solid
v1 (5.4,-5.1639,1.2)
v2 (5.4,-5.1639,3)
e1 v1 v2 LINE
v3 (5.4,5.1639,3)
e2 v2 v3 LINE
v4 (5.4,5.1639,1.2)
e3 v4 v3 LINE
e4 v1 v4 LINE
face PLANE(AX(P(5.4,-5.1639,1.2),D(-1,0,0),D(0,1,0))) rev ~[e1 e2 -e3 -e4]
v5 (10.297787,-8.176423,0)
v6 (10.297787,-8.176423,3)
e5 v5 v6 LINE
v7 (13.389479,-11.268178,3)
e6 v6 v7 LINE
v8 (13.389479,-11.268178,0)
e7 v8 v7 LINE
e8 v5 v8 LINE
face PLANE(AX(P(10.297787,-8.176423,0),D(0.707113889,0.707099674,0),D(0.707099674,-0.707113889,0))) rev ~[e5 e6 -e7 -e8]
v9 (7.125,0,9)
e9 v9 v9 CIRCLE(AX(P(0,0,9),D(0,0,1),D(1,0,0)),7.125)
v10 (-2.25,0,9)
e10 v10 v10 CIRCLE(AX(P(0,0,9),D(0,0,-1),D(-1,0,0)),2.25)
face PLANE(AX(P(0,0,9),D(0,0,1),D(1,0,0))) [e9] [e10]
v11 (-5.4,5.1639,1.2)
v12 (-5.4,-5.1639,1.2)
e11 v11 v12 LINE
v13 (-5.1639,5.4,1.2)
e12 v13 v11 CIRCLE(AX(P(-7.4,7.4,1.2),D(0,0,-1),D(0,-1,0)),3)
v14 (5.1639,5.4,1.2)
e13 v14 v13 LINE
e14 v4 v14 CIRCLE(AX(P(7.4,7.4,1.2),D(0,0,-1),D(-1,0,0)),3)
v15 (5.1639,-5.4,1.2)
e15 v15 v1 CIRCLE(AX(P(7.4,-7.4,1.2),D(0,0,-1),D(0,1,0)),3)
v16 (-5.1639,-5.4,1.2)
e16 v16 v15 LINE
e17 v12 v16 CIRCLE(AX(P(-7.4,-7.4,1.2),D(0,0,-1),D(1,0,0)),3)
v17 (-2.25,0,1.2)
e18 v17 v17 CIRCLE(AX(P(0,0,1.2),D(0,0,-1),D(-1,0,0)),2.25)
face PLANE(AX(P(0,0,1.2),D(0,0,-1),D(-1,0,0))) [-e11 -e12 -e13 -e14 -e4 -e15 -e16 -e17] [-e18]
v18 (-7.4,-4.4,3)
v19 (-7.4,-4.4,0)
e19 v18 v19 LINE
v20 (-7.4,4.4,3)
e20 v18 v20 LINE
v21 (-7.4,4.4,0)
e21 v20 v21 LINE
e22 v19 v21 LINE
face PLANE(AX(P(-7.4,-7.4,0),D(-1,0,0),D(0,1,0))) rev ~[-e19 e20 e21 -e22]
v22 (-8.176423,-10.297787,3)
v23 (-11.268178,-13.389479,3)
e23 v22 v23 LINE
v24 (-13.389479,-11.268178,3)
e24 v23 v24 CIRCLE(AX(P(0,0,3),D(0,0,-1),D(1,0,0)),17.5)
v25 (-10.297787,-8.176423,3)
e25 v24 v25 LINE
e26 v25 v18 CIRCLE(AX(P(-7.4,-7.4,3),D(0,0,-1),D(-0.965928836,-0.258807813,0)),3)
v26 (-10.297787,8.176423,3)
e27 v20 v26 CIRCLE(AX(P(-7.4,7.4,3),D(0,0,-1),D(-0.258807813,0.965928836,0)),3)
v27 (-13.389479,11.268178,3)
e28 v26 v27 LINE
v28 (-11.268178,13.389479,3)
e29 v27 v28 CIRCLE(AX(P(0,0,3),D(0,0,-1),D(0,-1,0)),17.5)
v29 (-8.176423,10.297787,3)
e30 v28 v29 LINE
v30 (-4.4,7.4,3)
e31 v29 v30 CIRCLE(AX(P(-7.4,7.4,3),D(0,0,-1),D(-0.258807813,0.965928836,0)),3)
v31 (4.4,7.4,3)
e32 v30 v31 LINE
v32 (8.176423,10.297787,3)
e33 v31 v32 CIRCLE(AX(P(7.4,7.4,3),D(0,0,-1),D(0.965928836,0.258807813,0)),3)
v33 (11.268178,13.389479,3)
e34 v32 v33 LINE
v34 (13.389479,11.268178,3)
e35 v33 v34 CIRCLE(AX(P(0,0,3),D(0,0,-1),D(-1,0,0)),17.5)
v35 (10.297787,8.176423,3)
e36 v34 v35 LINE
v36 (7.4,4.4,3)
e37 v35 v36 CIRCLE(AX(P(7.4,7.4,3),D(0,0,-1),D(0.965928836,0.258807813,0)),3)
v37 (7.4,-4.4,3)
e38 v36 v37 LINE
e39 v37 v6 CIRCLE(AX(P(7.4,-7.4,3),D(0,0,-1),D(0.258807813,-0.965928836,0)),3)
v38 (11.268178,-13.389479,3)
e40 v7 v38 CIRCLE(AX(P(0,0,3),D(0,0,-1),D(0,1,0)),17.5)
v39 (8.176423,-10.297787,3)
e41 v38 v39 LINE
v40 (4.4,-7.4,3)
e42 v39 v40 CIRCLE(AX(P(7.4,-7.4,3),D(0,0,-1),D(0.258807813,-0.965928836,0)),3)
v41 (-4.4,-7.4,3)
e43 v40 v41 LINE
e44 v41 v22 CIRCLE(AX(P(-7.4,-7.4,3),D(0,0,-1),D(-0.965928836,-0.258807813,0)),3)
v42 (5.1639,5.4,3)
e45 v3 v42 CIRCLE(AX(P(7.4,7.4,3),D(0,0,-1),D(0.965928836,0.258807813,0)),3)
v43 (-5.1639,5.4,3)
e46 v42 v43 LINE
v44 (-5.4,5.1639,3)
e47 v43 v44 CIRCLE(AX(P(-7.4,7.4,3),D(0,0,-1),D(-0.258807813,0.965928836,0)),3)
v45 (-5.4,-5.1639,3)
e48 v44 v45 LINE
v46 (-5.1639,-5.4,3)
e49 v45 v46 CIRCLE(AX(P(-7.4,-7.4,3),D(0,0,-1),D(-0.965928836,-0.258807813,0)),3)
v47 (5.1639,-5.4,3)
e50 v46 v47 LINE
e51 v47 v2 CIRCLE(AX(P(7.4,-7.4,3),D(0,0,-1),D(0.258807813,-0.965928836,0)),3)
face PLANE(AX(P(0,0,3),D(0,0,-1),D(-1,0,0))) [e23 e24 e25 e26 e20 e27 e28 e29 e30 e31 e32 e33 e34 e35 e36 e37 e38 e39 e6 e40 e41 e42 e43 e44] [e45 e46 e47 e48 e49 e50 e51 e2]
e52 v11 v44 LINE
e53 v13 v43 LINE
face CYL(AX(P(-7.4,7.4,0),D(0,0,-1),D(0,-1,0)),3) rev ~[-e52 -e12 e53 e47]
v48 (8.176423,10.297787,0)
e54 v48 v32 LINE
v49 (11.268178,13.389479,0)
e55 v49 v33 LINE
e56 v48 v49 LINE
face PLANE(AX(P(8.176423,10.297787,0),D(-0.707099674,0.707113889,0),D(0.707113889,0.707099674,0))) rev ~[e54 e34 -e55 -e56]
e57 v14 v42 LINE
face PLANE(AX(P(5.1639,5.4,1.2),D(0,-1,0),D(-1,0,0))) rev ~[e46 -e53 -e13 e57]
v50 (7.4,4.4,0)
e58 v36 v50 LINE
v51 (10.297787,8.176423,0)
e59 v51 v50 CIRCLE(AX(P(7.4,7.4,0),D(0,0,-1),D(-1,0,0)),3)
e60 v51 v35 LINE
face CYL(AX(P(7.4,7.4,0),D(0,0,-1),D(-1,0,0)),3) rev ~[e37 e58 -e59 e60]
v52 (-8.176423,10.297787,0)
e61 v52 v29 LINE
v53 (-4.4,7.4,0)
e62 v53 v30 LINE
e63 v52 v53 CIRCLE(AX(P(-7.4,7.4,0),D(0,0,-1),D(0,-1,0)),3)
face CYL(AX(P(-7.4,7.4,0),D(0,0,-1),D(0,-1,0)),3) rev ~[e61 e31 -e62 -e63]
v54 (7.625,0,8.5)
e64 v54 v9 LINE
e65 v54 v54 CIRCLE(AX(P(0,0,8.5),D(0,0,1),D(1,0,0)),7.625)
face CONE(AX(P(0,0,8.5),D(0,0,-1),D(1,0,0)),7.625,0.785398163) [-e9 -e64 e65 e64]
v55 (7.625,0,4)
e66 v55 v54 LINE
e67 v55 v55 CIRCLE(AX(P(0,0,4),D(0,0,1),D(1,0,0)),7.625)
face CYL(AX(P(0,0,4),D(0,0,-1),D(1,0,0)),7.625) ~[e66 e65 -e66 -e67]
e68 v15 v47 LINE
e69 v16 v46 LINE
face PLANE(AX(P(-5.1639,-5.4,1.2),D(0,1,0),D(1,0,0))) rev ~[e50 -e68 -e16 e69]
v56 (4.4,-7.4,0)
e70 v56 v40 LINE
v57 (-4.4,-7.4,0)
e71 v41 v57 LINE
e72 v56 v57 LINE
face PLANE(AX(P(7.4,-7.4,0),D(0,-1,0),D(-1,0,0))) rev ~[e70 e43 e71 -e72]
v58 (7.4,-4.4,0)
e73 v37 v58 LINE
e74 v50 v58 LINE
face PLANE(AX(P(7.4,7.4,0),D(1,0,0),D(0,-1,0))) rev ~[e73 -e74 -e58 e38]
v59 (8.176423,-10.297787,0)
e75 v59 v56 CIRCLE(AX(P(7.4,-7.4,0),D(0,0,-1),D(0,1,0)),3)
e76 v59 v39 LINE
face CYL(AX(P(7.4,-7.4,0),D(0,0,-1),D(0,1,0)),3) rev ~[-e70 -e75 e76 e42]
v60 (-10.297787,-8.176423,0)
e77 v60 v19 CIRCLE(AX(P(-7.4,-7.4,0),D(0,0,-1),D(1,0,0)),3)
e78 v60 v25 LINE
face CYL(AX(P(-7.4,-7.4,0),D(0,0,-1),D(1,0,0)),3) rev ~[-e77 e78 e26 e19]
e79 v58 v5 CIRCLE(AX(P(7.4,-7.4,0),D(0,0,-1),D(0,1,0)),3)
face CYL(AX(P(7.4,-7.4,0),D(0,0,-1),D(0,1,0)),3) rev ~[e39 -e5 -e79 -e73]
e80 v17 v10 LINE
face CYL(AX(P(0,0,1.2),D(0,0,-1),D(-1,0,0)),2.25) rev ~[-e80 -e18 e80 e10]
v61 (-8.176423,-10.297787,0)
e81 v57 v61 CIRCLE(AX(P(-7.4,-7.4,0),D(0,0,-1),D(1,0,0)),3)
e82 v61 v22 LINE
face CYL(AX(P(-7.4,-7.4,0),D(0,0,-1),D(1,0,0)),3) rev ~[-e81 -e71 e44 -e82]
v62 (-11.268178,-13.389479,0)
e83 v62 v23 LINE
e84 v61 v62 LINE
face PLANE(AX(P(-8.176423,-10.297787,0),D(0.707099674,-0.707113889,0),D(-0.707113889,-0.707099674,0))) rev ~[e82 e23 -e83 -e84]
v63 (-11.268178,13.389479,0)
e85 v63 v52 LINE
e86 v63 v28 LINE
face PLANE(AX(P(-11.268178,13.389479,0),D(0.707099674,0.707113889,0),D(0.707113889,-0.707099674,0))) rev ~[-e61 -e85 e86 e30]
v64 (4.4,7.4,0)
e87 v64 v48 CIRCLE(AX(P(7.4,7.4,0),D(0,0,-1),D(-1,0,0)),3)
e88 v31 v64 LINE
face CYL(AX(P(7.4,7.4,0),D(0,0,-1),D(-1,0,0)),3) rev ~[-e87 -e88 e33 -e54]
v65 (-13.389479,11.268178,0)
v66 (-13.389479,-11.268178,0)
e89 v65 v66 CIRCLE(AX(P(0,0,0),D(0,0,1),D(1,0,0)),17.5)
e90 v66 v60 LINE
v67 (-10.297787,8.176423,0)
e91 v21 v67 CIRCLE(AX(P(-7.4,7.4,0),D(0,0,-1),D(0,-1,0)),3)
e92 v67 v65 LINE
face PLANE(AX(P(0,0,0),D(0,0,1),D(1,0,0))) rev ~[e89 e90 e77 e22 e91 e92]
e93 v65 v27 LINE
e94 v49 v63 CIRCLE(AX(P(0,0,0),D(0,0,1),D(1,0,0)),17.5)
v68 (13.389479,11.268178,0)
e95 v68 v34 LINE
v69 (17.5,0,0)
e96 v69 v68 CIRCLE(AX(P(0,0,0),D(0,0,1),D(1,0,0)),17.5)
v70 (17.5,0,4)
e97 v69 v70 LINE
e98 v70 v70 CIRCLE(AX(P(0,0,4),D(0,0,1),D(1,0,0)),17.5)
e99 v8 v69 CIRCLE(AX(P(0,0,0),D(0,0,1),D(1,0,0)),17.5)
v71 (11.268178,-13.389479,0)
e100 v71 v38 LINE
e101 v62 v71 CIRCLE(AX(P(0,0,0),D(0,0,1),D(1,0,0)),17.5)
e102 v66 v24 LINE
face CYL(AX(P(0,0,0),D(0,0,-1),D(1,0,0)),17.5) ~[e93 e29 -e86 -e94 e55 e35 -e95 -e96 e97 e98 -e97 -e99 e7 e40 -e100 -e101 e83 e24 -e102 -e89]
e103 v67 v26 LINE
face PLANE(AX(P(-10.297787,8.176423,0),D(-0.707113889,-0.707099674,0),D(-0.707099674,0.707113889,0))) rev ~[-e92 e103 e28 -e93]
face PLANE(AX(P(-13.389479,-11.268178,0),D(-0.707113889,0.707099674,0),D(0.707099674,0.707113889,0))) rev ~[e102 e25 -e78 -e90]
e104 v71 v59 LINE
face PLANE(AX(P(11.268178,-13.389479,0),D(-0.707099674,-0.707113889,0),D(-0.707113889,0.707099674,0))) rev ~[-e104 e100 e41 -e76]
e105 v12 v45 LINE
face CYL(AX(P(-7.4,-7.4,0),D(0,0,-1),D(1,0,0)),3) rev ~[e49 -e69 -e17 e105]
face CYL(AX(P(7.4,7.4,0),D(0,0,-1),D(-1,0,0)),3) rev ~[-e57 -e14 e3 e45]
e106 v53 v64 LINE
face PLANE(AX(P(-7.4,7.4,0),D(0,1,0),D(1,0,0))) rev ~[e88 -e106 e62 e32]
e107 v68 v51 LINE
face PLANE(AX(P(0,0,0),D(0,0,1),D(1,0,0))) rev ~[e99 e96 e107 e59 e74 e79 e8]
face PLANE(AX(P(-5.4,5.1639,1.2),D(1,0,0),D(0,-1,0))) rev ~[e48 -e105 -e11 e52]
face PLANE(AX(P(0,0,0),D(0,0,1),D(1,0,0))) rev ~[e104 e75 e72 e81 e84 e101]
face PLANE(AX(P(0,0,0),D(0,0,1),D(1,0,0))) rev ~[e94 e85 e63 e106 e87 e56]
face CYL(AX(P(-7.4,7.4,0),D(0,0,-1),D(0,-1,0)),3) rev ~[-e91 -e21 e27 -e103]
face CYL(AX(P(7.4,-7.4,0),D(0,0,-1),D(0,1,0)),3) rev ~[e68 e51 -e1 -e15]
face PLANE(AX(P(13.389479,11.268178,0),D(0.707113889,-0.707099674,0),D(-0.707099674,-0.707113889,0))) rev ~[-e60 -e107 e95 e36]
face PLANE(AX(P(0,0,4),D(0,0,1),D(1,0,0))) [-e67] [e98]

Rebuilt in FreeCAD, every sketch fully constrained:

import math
import FreeCAD as App
import Part
import Sketcher
Q = App.Units.Quantity


def edges_at(feature, points):
    """Names of the edges that pass closest to the given points."""
    edges = feature.Shape.Edges
    near = lambda p: min(range(len(edges)), key=lambda i: edges[i].distToShape(Part.Vertex(*p))[0])
    return sorted({f"Edge{near(p) + 1}" for p in points})


def add_polygon(sketch, points):
    """Adds a closed chain of lines whose ends are joined by coincident constraints."""
    first, n = sketch.GeometryCount, len(points)
    for a, b in zip(points, points[1:] + points[:1]):
        sketch.addGeometry(Part.LineSegment(App.Vector(*a, 0), App.Vector(*b, 0)), False)
    for i in range(n):
        sketch.addConstraint(Sketcher.Constraint("Coincident", first + i, 2, first + (i + 1) % n, 1))

doc = App.newDocument("Part")
body = doc.addObject("PartDesign::Body", "Body")

sketch1 = doc.addObject("Sketcher::SketchObject", "Sketch")
body.addObject(sketch1)
sketch1.AttachmentSupport = (doc.XY_Plane, [""])
sketch1.MapMode = "FlatFace"
sketch1.addGeometry(Part.Circle(App.Vector(0, 0, 0), App.Vector(0, 0, 1), 17.5), False)
sketch1.addConstraint(Sketcher.Constraint("Coincident", 0, 3, -1, 1))
sketch1.addConstraint(Sketcher.Constraint("Diameter", 0, 35.0))
pad1 = doc.addObject("PartDesign::Pad", "Pad")
body.addObject(pad1)
pad1.Profile = sketch1
pad1.Length = 4

sketch2 = doc.addObject("Sketcher::SketchObject", "Sketch001")
body.addObject(sketch2)
sketch2.AttachmentSupport = (doc.XY_Plane, [""])
sketch2.MapMode = "FlatFace"
sketch2.AttachmentOffset = App.Placement(App.Vector(0, 0, 4), App.Rotation())
sketch2.addGeometry(Part.Circle(App.Vector(0, 0, 0), App.Vector(0, 0, 1), 7.625), False)
sketch2.addConstraint(Sketcher.Constraint("Coincident", 0, 3, -1, 1))
sketch2.addConstraint(Sketcher.Constraint("Diameter", 0, 15.25))
pad2 = doc.addObject("PartDesign::Pad", "Pad001")
body.addObject(pad2)
pad2.Profile = sketch2
pad2.Length = 5
doc.recompute()

chamfer = doc.addObject("PartDesign::Chamfer", "Chamfer")
body.addObject(chamfer)
chamfer.Base = (pad2, edges_at(pad2, [(-7.625, 0, 9)]))
chamfer.Size = 0.5

sketch3 = doc.addObject("Sketcher::SketchObject", "Sketch002")
body.addObject(sketch3)
sketch3.AttachmentSupport = (doc.XY_Plane, [""])
sketch3.MapMode = "FlatFace"
add_polygon(sketch3, [(7.4, 7.4), (7.4, -7.4), (-7.4, -7.4), (-7.4, 7.4)])
sketch3.addConstraint(Sketcher.Constraint("Vertical", 0))
sketch3.addConstraint(Sketcher.Constraint("Horizontal", 1))
sketch3.addConstraint(Sketcher.Constraint("Vertical", 2))
sketch3.addConstraint(Sketcher.Constraint("Horizontal", 3))
sketch3.addConstraint(Sketcher.Constraint("Symmetric", 0, 2, 2, 2, -1, 1))
sketch3.addConstraint(Sketcher.Constraint("Equal", 3, 0))
sketch3.addConstraint(Sketcher.Constraint("DistanceX", 1, 2, 1, 1, 14.8))
pocket1 = doc.addObject("PartDesign::Pocket", "Pocket")
body.addObject(pocket1)
pocket1.Profile = sketch3
pocket1.Length = 1.2
pocket1.Reversed = True

sketch4 = doc.addObject("Sketcher::SketchObject", "Sketch003")
body.addObject(sketch4)
sketch4.AttachmentSupport = (doc.XY_Plane, [""])
sketch4.MapMode = "FlatFace"
sketch4.addGeometry(Part.Circle(App.Vector(7.4, 7.4, 0), App.Vector(0, 0, 1), 3), False)
sketch4.addConstraint(Sketcher.Constraint("Diameter", 0, 6.0))
sketch4.addConstraint(Sketcher.Constraint("DistanceX", -1, 1, 0, 3, 7.4))
sketch4.addConstraint(Sketcher.Constraint("DistanceY", -1, 1, 0, 3, 7.4))
pocket2 = doc.addObject("PartDesign::Pocket", "Pocket001")
body.addObject(pocket2)
pocket2.Profile = sketch4
pocket2.Length = 3
pocket2.Reversed = True

sketch5 = doc.addObject("Sketcher::SketchObject", "Sketch004")
body.addObject(sketch5)
sketch5.AttachmentSupport = (doc.XY_Plane, [""])
sketch5.MapMode = "FlatFace"
sketch5.addGeometry(Part.ArcOfCircle(Part.Circle(App.Vector(7.4, 7.4, 0), App.Vector(0, 0, 1), 3), math.radians(14.999334), math.radians(75.000666)), False)
sketch5.addGeometry(Part.LineSegment(App.Vector(8.176423, 10.297787, 0), App.Vector(11.268178, 13.389479, 0)), False)
sketch5.addGeometry(Part.ArcOfCircle(Part.Circle(App.Vector(0, 0, 0), App.Vector(0, 0, 1), 17.5), math.radians(40.082945), math.radians(49.917055)), False)
sketch5.addGeometry(Part.LineSegment(App.Vector(13.389479, 11.268178, 0), App.Vector(10.297787, 8.176423, 0)), False)
sketch5.addConstraint(Sketcher.Constraint("Coincident", 0, 2, 1, 1))
sketch5.addConstraint(Sketcher.Constraint("Coincident", 1, 2, 2, 2))
sketch5.addConstraint(Sketcher.Constraint("Coincident", 2, 1, 3, 1))
sketch5.addConstraint(Sketcher.Constraint("Coincident", 3, 2, 0, 1))
sketch5.addConstraint(Sketcher.Constraint("Coincident", 2, 3, -1, 1))
sketch5.addConstraint(Sketcher.Constraint("Parallel", 1, 3))
sketch5.addConstraint(Sketcher.Constraint("Equal", 1, 3))
sketch5.addConstraint(Sketcher.Constraint("Angle", 1, Q("44.9994 deg")))
sketch5.addConstraint(Sketcher.Constraint("Radius", 0, 3.0))
sketch5.addConstraint(Sketcher.Constraint("Radius", 2, 17.5))
sketch5.addConstraint(Sketcher.Constraint("DistanceX", -1, 1, 0, 3, 7.4))
sketch5.addConstraint(Sketcher.Constraint("DistanceY", -1, 1, 0, 3, 7.4))
sketch5.addConstraint(Sketcher.Constraint("DistanceX", 0, 2, 2, 1, 5.213))
pocket3 = doc.addObject("PartDesign::Pocket", "Pocket002")
body.addObject(pocket3)
pocket3.Profile = sketch5
pocket3.Length = 3
pocket3.Reversed = True
doc.recompute()

polarpattern = doc.addObject("PartDesign::PolarPattern", "PolarPattern")
body.addObject(polarpattern)
polarpattern.Originals = [pocket2, pocket3]
polarpattern.Axis = (doc.Z_Axis, [""])
polarpattern.Angle = 360
polarpattern.Occurrences = 4
body.Tip = polarpattern

sketch6 = doc.addObject("Sketcher::SketchObject", "Sketch005")
body.addObject(sketch6)
sketch6.AttachmentSupport = (doc.XY_Plane, [""])
sketch6.MapMode = "FlatFace"
sketch6.AttachmentOffset = App.Placement(App.Vector(0, 0, 1.2), App.Rotation())
sketch6.addGeometry(Part.Circle(App.Vector(0, 0, 0), App.Vector(0, 0, 1), 2.25), False)
sketch6.addConstraint(Sketcher.Constraint("Coincident", 0, 3, -1, 1))
sketch6.addConstraint(Sketcher.Constraint("Diameter", 0, 4.5))
pocket4 = doc.addObject("PartDesign::Pocket", "Pocket003")
body.addObject(pocket4)
pocket4.Profile = sketch6
pocket4.Type = "ThroughAll"
pocket4.Reversed = True

sketch7 = doc.addObject("Sketcher::SketchObject", "Sketch006")
body.addObject(sketch7)
sketch7.AttachmentSupport = (doc.XY_Plane, [""])
sketch7.MapMode = "FlatFace"
sketch7.AttachmentOffset = App.Placement(App.Vector(0, 0, 1.2), App.Rotation())
add_polygon(sketch7, [(-7.4, 5.1639), (-5.4, 5.1639), (-5.4, -5.1639), (-7.4, -5.1639)])
sketch7.addConstraint(Sketcher.Constraint("Horizontal", 0))
sketch7.addConstraint(Sketcher.Constraint("Vertical", 1))
sketch7.addConstraint(Sketcher.Constraint("Horizontal", 2))
sketch7.addConstraint(Sketcher.Constraint("Vertical", 3))
sketch7.addConstraint(Sketcher.Constraint("DistanceX", 0, 1, 0, 2, 2.0))
sketch7.addConstraint(Sketcher.Constraint("DistanceX", 0, 2, -1, 1, 5.4))
sketch7.addConstraint(Sketcher.Constraint("DistanceY", 1, 2, 1, 1, 10.3278))
sketch7.addConstraint(Sketcher.Constraint("DistanceY", -1, 1, 0, 2, 5.164))
pocket5 = doc.addObject("PartDesign::Pocket", "Pocket004")
body.addObject(pocket5)
pocket5.Profile = sketch7
pocket5.Length = 1.8
pocket5.Reversed = True
doc.recompute()

polarpattern2 = doc.addObject("PartDesign::PolarPattern", "PolarPattern001")
body.addObject(polarpattern2)
polarpattern2.Originals = [pocket5]
polarpattern2.Axis = (doc.Z_Axis, [""])
polarpattern2.Angle = 360
polarpattern2.Occurrences = 4
body.Tip = polarpattern2

doc.recompute()
